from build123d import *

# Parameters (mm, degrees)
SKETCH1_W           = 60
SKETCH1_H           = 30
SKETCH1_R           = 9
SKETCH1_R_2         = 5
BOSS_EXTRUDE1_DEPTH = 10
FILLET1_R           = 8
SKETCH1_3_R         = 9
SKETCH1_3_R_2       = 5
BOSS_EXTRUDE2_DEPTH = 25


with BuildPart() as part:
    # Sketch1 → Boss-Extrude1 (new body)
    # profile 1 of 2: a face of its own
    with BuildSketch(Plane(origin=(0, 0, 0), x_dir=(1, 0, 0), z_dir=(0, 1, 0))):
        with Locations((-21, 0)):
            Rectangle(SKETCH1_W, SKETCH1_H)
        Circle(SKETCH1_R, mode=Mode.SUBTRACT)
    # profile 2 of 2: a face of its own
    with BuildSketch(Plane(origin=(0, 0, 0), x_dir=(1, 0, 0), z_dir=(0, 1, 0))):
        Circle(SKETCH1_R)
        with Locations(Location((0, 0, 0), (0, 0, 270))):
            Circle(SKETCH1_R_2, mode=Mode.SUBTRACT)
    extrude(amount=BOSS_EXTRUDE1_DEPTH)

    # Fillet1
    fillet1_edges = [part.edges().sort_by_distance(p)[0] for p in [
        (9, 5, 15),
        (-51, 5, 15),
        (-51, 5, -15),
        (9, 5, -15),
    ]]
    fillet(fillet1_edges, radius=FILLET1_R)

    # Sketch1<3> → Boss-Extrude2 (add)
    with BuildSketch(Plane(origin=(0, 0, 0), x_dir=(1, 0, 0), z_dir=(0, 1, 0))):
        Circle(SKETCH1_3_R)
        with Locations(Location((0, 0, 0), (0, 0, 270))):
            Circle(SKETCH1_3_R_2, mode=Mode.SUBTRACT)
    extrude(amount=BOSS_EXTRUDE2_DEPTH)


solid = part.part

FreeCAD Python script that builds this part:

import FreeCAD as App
import Part
import Sketcher

V = App.Vector
Q = App.Units.Quantity


def edges_at(feature, points):
    """Names of the edges that pass closest to the given points."""
    edges = feature.Shape.Edges
    near = lambda p: min(range(len(edges)), key=lambda i: edges[i].distToShape(Part.Vertex(*p))[0])
    return sorted({f"Edge{near(p) + 1}" for p in points})

doc = App.newDocument("Part")
params = doc.addObject("Spreadsheet::Sheet", "Params")
for row, (alias, value) in enumerate([
    ("sketch1_diameter", "10 mm"),
    ("sketch1_width", "60 mm"),
    ("sketch1_height", "30 mm"),
    ("pad1_length", "10 mm"),
    ("fillet_radius", "8 mm"),
    ("sketch2_diameter", "18 mm"),
    ("sketch2_diameter2", "10 mm"),
    ("pad2_length", "25 mm"),
], start=1):
    params.set(f"A{row}", alias)
    params.set(f"B{row}", "=" + value)
    params.setAlias(f"B{row}", alias)

body = doc.addObject("PartDesign::Body", "Body")

# Sketch on XZ plane
sketch1 = body.newObject("Sketcher::SketchObject", "Sketch")
sketch1.AttachmentSupport = (doc.getObject("XZ_Plane"), [""])
sketch1.MapMode = "FlatFace"
sketch1.addGeometry([
    Part.LineSegment(V(-51, -15, 0), V(-51, 15, 0)),  # 0
    Part.LineSegment(V(-51, 15, 0), V(9, 15, 0)),  # 1
    Part.LineSegment(V(9, 15, 0), V(9, -15, 0)),  # 2
    Part.LineSegment(V(9, -15, 0), V(-51, -15, 0)),  # 3
    Part.Circle(V(0, 0, 0), V(0, 0, 1), 5),  # 4
], False)
sketch1.addConstraint([
    Sketcher.Constraint("Coincident", 0, 2, 1, 1),
    Sketcher.Constraint("Coincident", 1, 2, 2, 1),
    Sketcher.Constraint("Coincident", 2, 2, 3, 1),
    Sketcher.Constraint("Coincident", 3, 2, 0, 1),
    Sketcher.Constraint("Vertical", 0),
    Sketcher.Constraint("Horizontal", 1),
    Sketcher.Constraint("Vertical", 2),
    Sketcher.Constraint("Horizontal", 3),
    Sketcher.Constraint("Coincident", 4, 3, -1, 1),
    Sketcher.Constraint("Diameter", 4, Q("10 mm")),
    Sketcher.Constraint("DistanceX", 1, 1, 1, 2, Q("60 mm")),
    Sketcher.Constraint("DistanceY", 0, 1, 0, 2, Q("30 mm")),
    Sketcher.Constraint("DistanceX", 0, 2, -1, 1, Q("51 mm")),
    Sketcher.Constraint("DistanceY", -1, 1, 0, 2, Q("15 mm")),
])
sketch1.setExpression("Constraints[9]", "Params.sketch1_diameter")
sketch1.setExpression("Constraints[10]", "Params.sketch1_width")
sketch1.setExpression("Constraints[11]", "Params.sketch1_height")
pad1 = body.newObject("PartDesign::Pad", "Pad")
pad1.Profile = sketch1
pad1.setExpression("Length", "Params.pad1_length")
pad1.Reversed = True
doc.recompute()

fillet = body.newObject("PartDesign::Fillet", "Fillet")
fillet.Base = (pad1, edges_at(pad1, [
    (9, 5, 15),
    (-51, 5, 15),
    (-51, 5, -15),
    (9, 5, -15),
]))
fillet.setExpression("Radius", "Params.fillet_radius")

# Sketch on XZ plane
sketch2 = body.newObject("Sketcher::SketchObject", "Sketch001")
sketch2.AttachmentSupport = (doc.getObject("XZ_Plane"), [""])
sketch2.MapMode = "FlatFace"
sketch2.addGeometry([
    Part.Circle(V(0, 0, 0), V(0, 0, 1), 9),
    Part.Circle(V(0, 0, 0), V(0, 0, 1), 5),
], False)
sketch2.addConstraint([
    Sketcher.Constraint("Coincident", 0, 3, -1, 1),
    Sketcher.Constraint("Coincident", 1, 3, -1, 1),
    Sketcher.Constraint("Diameter", 0, Q("18 mm")),
    Sketcher.Constraint("Diameter", 1, Q("10 mm")),
])
sketch2.setExpression("Constraints[2]", "Params.sketch2_diameter")
sketch2.setExpression("Constraints[3]", "Params.sketch2_diameter2")
pad2 = body.newObject("PartDesign::Pad", "Pad001")
pad2.Profile = sketch2
pad2.setExpression("Length", "Params.pad2_length")
pad2.Reversed = True

doc.recompute()
